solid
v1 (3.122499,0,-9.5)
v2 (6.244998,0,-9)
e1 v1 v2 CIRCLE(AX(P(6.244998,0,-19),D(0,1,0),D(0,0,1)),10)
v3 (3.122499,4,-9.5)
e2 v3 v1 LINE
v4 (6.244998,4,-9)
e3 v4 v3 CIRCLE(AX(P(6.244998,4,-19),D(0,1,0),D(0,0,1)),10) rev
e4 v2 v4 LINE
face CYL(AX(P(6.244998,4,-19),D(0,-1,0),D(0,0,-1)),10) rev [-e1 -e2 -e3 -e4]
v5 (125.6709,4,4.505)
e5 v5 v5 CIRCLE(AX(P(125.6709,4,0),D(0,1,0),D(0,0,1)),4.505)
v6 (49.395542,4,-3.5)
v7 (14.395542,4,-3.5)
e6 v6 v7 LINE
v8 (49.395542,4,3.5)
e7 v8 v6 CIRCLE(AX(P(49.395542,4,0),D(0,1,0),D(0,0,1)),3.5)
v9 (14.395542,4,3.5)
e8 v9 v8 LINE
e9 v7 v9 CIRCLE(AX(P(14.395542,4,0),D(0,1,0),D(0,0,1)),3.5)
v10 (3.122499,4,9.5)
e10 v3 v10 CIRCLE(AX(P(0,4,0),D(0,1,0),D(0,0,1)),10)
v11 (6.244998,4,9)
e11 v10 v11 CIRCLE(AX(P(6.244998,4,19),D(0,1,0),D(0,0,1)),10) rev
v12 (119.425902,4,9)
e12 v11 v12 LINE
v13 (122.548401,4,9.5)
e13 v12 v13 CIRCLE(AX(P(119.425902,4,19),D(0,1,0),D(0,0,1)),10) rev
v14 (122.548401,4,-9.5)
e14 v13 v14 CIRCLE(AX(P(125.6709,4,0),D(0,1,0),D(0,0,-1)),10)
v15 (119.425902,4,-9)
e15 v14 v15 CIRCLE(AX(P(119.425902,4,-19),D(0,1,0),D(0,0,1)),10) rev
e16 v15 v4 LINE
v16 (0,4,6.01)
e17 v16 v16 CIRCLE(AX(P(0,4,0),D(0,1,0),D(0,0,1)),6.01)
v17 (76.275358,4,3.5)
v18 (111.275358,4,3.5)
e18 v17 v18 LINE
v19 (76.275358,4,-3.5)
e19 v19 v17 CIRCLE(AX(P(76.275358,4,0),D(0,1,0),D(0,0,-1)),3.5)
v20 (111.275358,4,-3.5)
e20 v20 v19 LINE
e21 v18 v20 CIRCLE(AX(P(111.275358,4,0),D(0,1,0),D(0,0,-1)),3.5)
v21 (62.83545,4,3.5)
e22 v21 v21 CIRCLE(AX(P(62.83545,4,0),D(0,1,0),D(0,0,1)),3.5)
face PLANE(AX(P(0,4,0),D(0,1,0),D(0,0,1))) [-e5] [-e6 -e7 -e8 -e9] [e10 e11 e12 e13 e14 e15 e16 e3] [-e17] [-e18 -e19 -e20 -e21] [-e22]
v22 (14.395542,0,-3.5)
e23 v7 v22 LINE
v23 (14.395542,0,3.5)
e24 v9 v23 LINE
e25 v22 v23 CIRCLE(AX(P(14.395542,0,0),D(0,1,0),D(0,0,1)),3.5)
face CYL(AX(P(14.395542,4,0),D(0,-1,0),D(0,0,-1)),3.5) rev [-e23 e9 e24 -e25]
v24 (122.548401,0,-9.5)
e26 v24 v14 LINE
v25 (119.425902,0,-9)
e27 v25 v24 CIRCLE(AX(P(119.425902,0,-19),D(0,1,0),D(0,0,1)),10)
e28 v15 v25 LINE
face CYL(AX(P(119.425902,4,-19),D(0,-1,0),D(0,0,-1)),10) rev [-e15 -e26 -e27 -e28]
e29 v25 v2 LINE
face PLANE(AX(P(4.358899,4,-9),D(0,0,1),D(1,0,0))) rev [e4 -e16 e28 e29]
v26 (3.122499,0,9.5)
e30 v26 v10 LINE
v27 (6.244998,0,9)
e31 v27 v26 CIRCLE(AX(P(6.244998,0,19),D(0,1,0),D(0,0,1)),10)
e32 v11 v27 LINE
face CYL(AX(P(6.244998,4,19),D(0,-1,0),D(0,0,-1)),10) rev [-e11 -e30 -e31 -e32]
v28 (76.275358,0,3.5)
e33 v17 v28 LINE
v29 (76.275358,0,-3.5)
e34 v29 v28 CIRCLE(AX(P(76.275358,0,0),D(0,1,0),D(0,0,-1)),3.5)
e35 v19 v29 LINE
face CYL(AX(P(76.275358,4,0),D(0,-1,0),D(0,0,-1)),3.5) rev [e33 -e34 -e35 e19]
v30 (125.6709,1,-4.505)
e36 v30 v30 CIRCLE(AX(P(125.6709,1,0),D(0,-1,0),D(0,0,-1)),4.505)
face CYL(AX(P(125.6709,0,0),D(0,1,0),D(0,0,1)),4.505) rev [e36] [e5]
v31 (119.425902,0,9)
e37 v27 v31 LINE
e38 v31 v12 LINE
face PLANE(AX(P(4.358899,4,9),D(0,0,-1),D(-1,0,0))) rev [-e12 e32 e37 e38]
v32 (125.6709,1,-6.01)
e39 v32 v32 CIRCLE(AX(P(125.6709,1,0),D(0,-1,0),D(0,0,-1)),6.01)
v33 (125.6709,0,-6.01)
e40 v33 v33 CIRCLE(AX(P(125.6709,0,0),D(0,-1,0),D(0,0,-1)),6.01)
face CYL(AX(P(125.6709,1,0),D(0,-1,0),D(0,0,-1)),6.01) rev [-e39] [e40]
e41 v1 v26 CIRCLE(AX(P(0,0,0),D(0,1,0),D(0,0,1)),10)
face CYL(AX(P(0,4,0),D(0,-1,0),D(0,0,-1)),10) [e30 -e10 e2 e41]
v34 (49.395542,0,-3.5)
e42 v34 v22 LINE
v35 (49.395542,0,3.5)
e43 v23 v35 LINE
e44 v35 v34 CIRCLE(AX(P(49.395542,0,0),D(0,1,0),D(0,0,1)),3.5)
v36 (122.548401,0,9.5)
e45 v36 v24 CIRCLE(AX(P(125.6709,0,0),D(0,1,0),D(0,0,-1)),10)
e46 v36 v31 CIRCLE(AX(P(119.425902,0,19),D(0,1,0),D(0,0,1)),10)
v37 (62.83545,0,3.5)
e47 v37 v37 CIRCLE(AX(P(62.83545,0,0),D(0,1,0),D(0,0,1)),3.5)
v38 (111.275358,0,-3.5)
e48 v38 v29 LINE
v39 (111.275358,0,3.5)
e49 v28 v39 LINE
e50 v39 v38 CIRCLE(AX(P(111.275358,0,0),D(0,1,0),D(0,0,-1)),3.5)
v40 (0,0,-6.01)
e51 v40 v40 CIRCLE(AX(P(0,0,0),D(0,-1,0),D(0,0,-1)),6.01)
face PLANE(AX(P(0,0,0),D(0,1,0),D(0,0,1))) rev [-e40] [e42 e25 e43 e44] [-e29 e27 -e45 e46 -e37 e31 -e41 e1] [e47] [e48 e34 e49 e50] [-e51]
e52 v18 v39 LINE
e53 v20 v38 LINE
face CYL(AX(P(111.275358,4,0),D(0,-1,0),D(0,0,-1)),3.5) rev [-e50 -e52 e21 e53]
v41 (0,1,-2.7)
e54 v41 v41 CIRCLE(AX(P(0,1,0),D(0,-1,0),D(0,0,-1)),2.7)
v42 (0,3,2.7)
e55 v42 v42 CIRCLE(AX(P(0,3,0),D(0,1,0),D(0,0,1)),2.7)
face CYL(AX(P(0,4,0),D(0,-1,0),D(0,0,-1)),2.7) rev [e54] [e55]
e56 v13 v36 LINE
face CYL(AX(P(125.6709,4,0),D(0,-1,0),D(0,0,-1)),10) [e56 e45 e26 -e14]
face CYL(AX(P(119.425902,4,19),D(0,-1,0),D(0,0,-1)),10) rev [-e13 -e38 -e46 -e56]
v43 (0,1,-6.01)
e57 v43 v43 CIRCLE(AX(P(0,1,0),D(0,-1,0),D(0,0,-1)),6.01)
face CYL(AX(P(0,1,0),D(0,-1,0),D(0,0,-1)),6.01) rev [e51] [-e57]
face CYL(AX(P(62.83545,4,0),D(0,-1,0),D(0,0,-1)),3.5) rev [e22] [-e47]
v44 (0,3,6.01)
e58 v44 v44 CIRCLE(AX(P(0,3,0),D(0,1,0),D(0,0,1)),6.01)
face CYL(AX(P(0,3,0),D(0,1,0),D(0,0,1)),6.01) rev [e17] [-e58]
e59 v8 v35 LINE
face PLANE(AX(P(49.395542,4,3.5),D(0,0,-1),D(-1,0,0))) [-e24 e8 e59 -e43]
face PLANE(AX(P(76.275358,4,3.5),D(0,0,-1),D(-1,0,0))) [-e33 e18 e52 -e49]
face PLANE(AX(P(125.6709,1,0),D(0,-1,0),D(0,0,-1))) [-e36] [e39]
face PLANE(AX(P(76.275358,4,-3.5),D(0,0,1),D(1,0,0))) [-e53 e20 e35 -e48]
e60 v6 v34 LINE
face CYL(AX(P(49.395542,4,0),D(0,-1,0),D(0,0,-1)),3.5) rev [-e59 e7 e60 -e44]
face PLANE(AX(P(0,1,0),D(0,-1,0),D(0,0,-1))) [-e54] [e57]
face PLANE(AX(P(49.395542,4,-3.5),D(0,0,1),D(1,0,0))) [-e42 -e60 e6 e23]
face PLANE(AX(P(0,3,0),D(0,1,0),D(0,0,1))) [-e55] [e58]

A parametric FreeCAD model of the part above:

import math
import FreeCAD as App
import Part
import Sketcher
Q = App.Units.Quantity


def edges_at(feature, points):
    """Names of the edges that pass closest to the given points."""
    edges = feature.Shape.Edges
    near = lambda p: min(range(len(edges)), key=lambda i: edges[i].distToShape(Part.Vertex(*p))[0])
    return sorted({f"Edge{near(p) + 1}" for p in points})

doc = App.newDocument("Part")
params = doc.addObject("Spreadsheet::Sheet", "Params")
for row, (alias, value) in enumerate([
    ("sketch1_diameter", "7 mm"),
    ("sketch1_diameter2", "5 mm"),
    ("sketch1_radius", "10 mm"),
    ("sketch1_diameter3", "5.4 mm"),
    ("sketch1_width", "35 mm"),
    ("pad1_length", "4 mm"),
    ("sketch2_diameter", "12.02 mm"),
    ("pocket1_length", "1 mm"),
    ("sketch3_diameter", "12.02 mm"),
    ("pocket2_length", "1 mm"),
    ("sketch4_diameter", "12.02 mm"),
    ("pocket3_length", "1 mm"),
    ("sketch5_diameter", "9.01 mm"),
    ("fillet_radius", "10 mm"),
], start=1):
    params.set(f"A{row}", alias)
    params.set(f"B{row}", "=" + value)
    params.setAlias(f"B{row}", alias)

body = doc.addObject("PartDesign::Body", "Body")

# Sketch on XZ plane
sketch1 = body.newObject("Sketcher::SketchObject", "Sketch")
sketch1.AttachmentSupport = (doc.getObject("XZ_Plane"), [""])
sketch1.MapMode = "FlatFace"
sketch1.addGeometry([
    Part.LineSegment(App.Vector(4.358899, 9, 0), App.Vector(121.312001, 9, 0)),  # 0
    Part.ArcOfCircle(Part.Circle(App.Vector(125.6709, 0, 0), App.Vector(0, 0, 1), 10), math.radians(-115.841933), math.radians(115.841933)),  # 1
    Part.LineSegment(App.Vector(121.312001, -9, 0), App.Vector(4.358899, -9, 0)),  # 2
    Part.ArcOfCircle(Part.Circle(App.Vector(0, 0, 0), App.Vector(0, 0, 1), 10), math.radians(64.158067), math.radians(295.841933)),  # 3
    Part.Circle(App.Vector(0, 0, 0), App.Vector(0, 0, 1), 2.7),  # 4
    Part.ArcOfCircle(Part.Circle(App.Vector(49.395542, 0, 0), App.Vector(0, 0, 1), 3.5), math.radians(-90), math.radians(90)),  # 5
    Part.LineSegment(App.Vector(49.395542, 3.5, 0), App.Vector(14.395542, 3.5, 0)),  # 6
    Part.ArcOfCircle(Part.Circle(App.Vector(14.395542, 0, 0), App.Vector(0, 0, 1), 3.5), math.radians(90), math.radians(270)),  # 7
    Part.LineSegment(App.Vector(14.395542, -3.5, 0), App.Vector(49.395542, -3.5, 0)),  # 8
    Part.Circle(App.Vector(62.83545, 0, 0), App.Vector(0, 0, 1), 3.5),  # 9
    Part.LineSegment(App.Vector(111.275358, 3.5, 0), App.Vector(76.275358, 3.5, 0)),  # 10
    Part.ArcOfCircle(Part.Circle(App.Vector(76.275358, 0, 0), App.Vector(0, 0, 1), 3.5), math.radians(90), math.radians(270)),  # 11
    Part.LineSegment(App.Vector(76.275358, -3.5, 0), App.Vector(111.275358, -3.5, 0)),  # 12
    Part.ArcOfCircle(Part.Circle(App.Vector(111.275358, 0, 0), App.Vector(0, 0, 1), 3.5), math.radians(-90), math.radians(90)),  # 13
    Part.Circle(App.Vector(125.6709, 0, 0), App.Vector(0, 0, 1), 2.5),  # 14
], False)
sketch1.addConstraint([
    Sketcher.Constraint("Coincident", 0, 2, 1, 2),
    Sketcher.Constraint("Coincident", 1, 1, 2, 1),
    Sketcher.Constraint("Coincident", 2, 2, 3, 2),
    Sketcher.Constraint("Coincident", 3, 1, 0, 1),
    Sketcher.Constraint("Tangent", 5, 2, 6, 1),
    Sketcher.Constraint("Tangent", 6, 2, 7, 1),
    Sketcher.Constraint("Tangent", 7, 2, 8, 1),
    Sketcher.Constraint("Tangent", 8, 2, 5, 1),
    Sketcher.Constraint("Tangent", 10, 2, 11, 1),
    Sketcher.Constraint("Tangent", 11, 2, 12, 1),
    Sketcher.Constraint("Tangent", 12, 2, 13, 1),
    Sketcher.Constraint("Tangent", 13, 2, 10, 1),
    Sketcher.Constraint("Horizontal", 0),
    Sketcher.Constraint("Horizontal", 2),
    Sketcher.Constraint("Horizontal", 6),
    Sketcher.Constraint("Horizontal", 8),
    Sketcher.Constraint("Horizontal", 10),
    Sketcher.Constraint("Horizontal", 12),
    Sketcher.Constraint("Coincident", 3, 3, -1, 1),
    Sketcher.Constraint("Coincident", 4, 3, -1, 1),
    Sketcher.Constraint("Coincident", 14, 3, 1, 3),
    Sketcher.Constraint("Equal", 1, 3),
    Sketcher.Constraint("Equal", 7, 9),
    Sketcher.Constraint("Equal", 9, 11),
    Sketcher.Constraint("Symmetric", 0, 2, 1, 1, -1),
    Sketcher.Constraint("PointOnObject", 5, 3, -1),
    Sketcher.Constraint("PointOnObject", 9, 3, -1),
    Sketcher.Constraint("PointOnObject", 11, 3, -1),
    Sketcher.Constraint("Equal", 8, 10),
    Sketcher.Constraint("Diameter", 9, Q("7 mm")),
    Sketcher.Constraint("Diameter", 14, Q("5 mm")),
    Sketcher.Constraint("Radius", 1, Q("10 mm")),
    Sketcher.Constraint("Diameter", 4, Q("5.4 mm")),
    Sketcher.Constraint("DistanceX", 6, 2, 6, 1, Q("35 mm")),
    Sketcher.Constraint("DistanceY", -1, 1, 0, 2, Q("9 mm")),
    Sketcher.Constraint("DistanceX", -1, 1, 0, 2, Q("121.312001 mm")),
    Sketcher.Constraint("DistanceX", -1, 1, 9, 3, Q("62.83545 mm")),
    Sketcher.Constraint("DistanceX", -1, 1, 5, 3, Q("49.395542 mm")),
    Sketcher.Constraint("DistanceX", -1, 1, 11, 3, Q("76.275358 mm")),
])
sketch1.setExpression("Constraints[29]", "Params.sketch1_diameter")
sketch1.setExpression("Constraints[30]", "Params.sketch1_diameter2")
sketch1.setExpression("Constraints[31]", "Params.sketch1_radius")
sketch1.setExpression("Constraints[32]", "Params.sketch1_diameter3")
sketch1.setExpression("Constraints[33]", "Params.sketch1_width")
pad1 = body.newObject("PartDesign::Pad", "Pad")
pad1.Profile = sketch1
pad1.setExpression("Length", "Params.pad1_length")
pad1.Reversed = True

# Sketch on XZ plane
sketch2 = body.newObject("Sketcher::SketchObject", "Sketch001")
sketch2.AttachmentSupport = (doc.getObject("XZ_Plane"), [""])
sketch2.MapMode = "FlatFace"
sketch2.addGeometry(Part.Circle(App.Vector(125.6709, 0, 0), App.Vector(0, 0, 1), 6.01), False)
sketch2.addConstraint([
    Sketcher.Constraint("PointOnObject", 0, 3, -1),
    Sketcher.Constraint("Diameter", 0, Q("12.02 mm")),
    Sketcher.Constraint("DistanceX", -1, 1, 0, 3, Q("125.6709 mm")),
])
sketch2.setExpression("Constraints[1]", "Params.sketch2_diameter")
pocket1 = body.newObject("PartDesign::Pocket", "Pocket")
pocket1.Profile = sketch2
pocket1.setExpression("Length", "Params.pocket1_length")

# Sketch on XZ plane
sketch3 = body.newObject("Sketcher::SketchObject", "Sketch002")
sketch3.AttachmentSupport = (doc.getObject("XZ_Plane"), [""])
sketch3.MapMode = "FlatFace"
sketch3.AttachmentOffset = App.Placement(App.Vector(0, 0, -4), App.Rotation())
sketch3.addGeometry(Part.Circle(App.Vector(0, 0, 0), App.Vector(0, 0, 1), 6.01), False)
sketch3.addConstraint([
    Sketcher.Constraint("Coincident", 0, 3, -1, 1),
    Sketcher.Constraint("Diameter", 0, Q("12.02 mm")),
])
sketch3.setExpression("Constraints[1]", "Params.sketch3_diameter")
pocket2 = body.newObject("PartDesign::Pocket", "Pocket001")
pocket2.Profile = sketch3
pocket2.setExpression("Length", "Params.pocket2_length")
pocket2.Reversed = True

# Sketch on XZ plane
sketch4 = body.newObject("Sketcher::SketchObject", "Sketch003")
sketch4.AttachmentSupport = (doc.getObject("XZ_Plane"), [""])
sketch4.MapMode = "FlatFace"
sketch4.AttachmentOffset = App.Placement(App.Vector(0, 0, -1), App.Rotation())
sketch4.addGeometry(Part.Circle(App.Vector(0, 0, 0), App.Vector(0, 0, 1), 6.01), False)
sketch4.addConstraint([
    Sketcher.Constraint("Coincident", 0, 3, -1, 1),
    Sketcher.Constraint("Diameter", 0, Q("12.02 mm")),
])
sketch4.setExpression("Constraints[1]", "Params.sketch4_diameter")
pocket3 = body.newObject("PartDesign::Pocket", "Pocket002")
pocket3.Profile = sketch4
pocket3.setExpression("Length", "Params.pocket3_length")
pocket3.Reversed = True

# Sketch on XZ plane
sketch5 = body.newObject("Sketcher::SketchObject", "Sketch004")
sketch5.AttachmentSupport = (doc.getObject("XZ_Plane"), [""])
sketch5.MapMode = "FlatFace"
sketch5.AttachmentOffset = App.Placement(App.Vector(0, 0, -4), App.Rotation())
sketch5.addGeometry(Part.Circle(App.Vector(125.6709, 0, 0), App.Vector(0, 0, 1), 4.505), False)
sketch5.addConstraint([
    Sketcher.Constraint("PointOnObject", 0, 3, -1),
    Sketcher.Constraint("Diameter", 0, Q("9.01 mm")),
    Sketcher.Constraint("DistanceX", -1, 1, 0, 3, Q("125.6709 mm")),
])
sketch5.setExpression("Constraints[1]", "Params.sketch5_diameter")
pocket4 = body.newObject("PartDesign::Pocket", "Pocket003")
pocket4.Profile = sketch5
pocket4.Type = "ThroughAll"
pocket4.Reversed = True
doc.recompute()

fillet = body.newObject("PartDesign::Fillet", "Fillet")
fillet.Base = (pocket4, edges_at(pocket4, [
    (4.359, 2, -9),
    (121.312, 2, -9),
    (121.312, 2, 9),
    (4.359, 2, 9),
]))
fillet.setExpression("Radius", "Params.fillet_radius")

doc.recompute()
